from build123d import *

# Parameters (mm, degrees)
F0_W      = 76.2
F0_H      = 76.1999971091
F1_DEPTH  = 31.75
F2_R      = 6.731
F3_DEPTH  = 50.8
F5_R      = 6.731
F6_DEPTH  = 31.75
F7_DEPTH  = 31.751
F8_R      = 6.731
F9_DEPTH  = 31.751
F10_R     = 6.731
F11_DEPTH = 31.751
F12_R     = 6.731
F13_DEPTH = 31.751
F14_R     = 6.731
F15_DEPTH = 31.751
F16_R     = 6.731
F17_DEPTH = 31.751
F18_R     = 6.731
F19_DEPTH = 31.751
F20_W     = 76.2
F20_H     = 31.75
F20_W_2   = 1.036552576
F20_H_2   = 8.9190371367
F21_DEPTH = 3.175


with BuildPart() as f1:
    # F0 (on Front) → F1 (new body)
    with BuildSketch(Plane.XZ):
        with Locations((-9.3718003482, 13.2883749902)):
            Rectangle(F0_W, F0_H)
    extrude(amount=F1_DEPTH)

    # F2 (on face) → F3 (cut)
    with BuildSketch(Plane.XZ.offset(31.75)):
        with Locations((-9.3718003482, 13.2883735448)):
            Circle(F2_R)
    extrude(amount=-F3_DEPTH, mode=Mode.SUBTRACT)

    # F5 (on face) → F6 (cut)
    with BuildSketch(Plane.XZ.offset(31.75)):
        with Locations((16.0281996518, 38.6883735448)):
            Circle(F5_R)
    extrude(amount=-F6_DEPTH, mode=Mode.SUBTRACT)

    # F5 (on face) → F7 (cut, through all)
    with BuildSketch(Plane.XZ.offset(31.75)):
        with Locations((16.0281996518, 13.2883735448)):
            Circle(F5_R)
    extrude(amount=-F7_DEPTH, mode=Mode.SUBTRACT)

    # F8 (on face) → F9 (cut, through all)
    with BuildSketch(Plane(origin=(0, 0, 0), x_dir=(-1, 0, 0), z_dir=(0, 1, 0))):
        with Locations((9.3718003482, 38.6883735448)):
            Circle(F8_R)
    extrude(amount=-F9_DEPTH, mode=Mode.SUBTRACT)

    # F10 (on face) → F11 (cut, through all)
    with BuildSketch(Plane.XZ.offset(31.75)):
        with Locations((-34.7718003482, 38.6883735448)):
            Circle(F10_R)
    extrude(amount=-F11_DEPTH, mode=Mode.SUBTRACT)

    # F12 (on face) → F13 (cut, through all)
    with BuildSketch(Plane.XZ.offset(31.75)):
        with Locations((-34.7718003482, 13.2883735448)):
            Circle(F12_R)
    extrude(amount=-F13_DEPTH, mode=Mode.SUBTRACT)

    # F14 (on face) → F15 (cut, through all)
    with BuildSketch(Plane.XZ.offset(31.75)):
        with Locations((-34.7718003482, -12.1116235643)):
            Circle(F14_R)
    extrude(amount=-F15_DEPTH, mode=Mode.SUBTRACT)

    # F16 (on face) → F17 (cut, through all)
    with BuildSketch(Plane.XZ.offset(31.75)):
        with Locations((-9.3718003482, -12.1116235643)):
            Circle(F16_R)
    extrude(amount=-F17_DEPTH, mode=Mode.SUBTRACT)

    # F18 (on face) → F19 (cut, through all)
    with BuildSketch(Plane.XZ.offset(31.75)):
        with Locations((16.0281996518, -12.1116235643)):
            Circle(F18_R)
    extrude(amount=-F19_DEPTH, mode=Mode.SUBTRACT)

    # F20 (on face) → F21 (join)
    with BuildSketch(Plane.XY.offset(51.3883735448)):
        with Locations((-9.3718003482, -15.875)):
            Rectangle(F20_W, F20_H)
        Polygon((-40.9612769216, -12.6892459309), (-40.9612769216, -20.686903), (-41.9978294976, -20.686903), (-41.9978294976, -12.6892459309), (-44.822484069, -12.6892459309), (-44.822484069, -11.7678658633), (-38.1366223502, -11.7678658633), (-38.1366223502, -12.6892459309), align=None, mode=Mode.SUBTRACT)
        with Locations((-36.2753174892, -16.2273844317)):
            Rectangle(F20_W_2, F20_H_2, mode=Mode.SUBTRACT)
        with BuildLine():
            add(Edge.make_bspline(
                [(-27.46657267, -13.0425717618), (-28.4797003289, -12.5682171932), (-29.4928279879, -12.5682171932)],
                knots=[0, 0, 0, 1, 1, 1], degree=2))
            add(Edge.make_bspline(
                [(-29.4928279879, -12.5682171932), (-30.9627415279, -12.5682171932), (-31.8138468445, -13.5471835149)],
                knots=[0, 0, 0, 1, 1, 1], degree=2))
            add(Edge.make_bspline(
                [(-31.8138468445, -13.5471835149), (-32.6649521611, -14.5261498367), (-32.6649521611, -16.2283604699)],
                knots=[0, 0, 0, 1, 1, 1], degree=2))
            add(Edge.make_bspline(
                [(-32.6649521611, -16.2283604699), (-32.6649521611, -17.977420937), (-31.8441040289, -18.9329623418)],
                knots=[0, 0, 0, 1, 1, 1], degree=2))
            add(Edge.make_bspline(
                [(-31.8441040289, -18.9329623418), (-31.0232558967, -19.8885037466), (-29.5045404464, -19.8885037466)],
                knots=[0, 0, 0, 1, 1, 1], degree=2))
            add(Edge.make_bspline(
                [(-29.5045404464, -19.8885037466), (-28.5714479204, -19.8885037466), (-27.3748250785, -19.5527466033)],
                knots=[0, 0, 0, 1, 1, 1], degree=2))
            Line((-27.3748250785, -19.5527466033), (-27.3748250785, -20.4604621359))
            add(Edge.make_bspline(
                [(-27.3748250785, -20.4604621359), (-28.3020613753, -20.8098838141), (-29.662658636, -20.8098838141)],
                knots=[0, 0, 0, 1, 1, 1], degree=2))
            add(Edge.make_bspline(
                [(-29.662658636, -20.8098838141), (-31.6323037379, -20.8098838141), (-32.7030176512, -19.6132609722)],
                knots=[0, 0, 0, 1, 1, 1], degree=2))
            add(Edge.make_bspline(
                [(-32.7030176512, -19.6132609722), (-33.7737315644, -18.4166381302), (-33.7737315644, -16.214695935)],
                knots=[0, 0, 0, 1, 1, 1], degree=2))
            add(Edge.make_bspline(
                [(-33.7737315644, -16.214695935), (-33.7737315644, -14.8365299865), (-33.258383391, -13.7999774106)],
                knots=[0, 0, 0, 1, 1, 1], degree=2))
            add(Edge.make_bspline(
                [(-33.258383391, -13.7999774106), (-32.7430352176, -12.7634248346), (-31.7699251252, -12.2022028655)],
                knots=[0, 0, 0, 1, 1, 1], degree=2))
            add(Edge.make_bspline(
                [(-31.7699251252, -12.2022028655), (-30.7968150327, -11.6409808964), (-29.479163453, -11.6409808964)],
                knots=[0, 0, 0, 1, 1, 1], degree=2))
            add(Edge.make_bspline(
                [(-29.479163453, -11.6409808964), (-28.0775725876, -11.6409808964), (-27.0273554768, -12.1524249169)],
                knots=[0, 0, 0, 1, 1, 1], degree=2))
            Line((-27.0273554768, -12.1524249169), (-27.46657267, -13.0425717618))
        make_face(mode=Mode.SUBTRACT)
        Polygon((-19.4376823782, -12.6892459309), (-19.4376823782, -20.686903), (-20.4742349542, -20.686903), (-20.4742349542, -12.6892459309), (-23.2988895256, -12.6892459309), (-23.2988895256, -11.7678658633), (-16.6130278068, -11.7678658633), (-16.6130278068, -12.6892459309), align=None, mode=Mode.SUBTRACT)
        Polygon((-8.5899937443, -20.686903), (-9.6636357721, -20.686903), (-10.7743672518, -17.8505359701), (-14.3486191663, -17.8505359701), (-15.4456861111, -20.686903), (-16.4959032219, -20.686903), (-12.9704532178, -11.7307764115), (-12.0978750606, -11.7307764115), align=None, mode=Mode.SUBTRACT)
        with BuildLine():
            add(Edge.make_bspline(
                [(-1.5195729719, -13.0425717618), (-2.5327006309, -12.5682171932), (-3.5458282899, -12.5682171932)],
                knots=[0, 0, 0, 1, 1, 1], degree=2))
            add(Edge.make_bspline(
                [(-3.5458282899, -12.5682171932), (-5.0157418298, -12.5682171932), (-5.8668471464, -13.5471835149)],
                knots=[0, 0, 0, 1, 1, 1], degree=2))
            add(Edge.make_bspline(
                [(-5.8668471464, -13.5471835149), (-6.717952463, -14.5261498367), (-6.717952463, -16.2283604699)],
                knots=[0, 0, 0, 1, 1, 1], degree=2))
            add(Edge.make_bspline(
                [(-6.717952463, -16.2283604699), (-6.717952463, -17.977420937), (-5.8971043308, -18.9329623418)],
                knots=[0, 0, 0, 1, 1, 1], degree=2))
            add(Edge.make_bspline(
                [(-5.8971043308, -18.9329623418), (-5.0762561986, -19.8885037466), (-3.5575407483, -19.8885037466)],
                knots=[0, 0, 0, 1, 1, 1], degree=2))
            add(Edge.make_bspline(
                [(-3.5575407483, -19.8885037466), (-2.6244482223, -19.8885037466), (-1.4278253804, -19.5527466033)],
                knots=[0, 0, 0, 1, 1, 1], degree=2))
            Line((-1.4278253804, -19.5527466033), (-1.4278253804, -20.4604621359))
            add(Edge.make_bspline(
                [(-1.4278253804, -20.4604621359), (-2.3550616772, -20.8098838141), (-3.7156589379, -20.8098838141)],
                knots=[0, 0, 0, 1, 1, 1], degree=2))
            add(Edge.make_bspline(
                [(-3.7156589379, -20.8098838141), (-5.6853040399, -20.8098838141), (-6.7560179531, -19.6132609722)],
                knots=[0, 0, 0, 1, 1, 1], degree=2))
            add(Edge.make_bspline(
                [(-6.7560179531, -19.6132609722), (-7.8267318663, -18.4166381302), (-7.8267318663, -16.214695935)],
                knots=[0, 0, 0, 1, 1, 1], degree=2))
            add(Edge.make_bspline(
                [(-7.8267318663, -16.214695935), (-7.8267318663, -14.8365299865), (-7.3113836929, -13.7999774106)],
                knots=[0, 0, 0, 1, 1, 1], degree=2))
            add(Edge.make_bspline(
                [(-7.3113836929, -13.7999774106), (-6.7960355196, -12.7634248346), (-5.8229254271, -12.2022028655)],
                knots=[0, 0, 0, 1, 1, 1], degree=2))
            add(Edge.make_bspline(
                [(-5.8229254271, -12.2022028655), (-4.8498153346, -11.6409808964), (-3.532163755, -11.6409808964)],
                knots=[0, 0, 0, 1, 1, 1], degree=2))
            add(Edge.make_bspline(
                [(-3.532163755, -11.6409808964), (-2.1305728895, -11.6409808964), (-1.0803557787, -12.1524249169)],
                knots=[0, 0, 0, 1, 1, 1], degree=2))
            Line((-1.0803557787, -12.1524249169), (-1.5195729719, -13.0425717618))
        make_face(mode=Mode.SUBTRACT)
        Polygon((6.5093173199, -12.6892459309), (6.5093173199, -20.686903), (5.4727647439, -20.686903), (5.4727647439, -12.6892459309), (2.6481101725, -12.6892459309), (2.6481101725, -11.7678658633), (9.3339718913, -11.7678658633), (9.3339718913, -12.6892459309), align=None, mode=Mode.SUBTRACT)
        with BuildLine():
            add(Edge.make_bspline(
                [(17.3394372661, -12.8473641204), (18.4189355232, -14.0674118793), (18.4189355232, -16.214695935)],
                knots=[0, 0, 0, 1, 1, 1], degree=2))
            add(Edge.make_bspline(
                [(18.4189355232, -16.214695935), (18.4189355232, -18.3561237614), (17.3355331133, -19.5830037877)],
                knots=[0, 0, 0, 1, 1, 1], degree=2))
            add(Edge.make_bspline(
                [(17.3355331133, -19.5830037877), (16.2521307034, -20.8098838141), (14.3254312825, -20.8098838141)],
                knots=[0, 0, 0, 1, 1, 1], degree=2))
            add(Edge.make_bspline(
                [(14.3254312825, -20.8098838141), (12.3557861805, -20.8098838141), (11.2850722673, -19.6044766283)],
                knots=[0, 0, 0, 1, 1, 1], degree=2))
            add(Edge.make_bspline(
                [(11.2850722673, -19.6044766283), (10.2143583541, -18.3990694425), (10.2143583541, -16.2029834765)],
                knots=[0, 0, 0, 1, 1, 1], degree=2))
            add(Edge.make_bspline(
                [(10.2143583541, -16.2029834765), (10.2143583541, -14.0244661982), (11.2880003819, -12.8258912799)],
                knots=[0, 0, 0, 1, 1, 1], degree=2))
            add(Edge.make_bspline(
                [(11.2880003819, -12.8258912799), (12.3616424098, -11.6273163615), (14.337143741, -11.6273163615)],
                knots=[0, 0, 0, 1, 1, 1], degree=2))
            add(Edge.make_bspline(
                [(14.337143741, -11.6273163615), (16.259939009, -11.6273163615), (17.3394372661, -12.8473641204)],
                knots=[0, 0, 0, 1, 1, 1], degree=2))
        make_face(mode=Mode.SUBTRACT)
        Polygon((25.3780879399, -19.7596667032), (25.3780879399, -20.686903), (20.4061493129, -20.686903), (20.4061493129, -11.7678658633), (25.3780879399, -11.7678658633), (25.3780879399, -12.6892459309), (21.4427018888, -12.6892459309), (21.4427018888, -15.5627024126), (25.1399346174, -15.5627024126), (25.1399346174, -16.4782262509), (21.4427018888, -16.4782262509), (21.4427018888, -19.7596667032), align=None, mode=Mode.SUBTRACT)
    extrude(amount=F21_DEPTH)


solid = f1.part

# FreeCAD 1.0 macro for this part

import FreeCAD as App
import Part
import Sketcher

V = App.Vector
Q = App.Units.Quantity


def add_polygon(sketch, points):
    """Adds a closed chain of lines whose ends are joined by coincident constraints."""
    first, n = sketch.GeometryCount, len(points)
    for a, b in zip(points, points[1:] + points[:1]):
        sketch.addGeometry(Part.LineSegment(App.Vector(*a, 0), App.Vector(*b, 0)), False)
    for i in range(n):
        sketch.addConstraint(Sketcher.Constraint("Coincident", first + i, 2, first + (i + 1) % n, 1))

doc = App.newDocument("Part")
params = doc.addObject("Spreadsheet::Sheet", "Params")
for row, (alias, value) in enumerate([
    ("sketch1_width", "3 in"),
    ("sketch1_height", "2.9999999 in"),
    ("pad1_length", "1.25 in"),
    ("sketch2_diameter", "0.53 in"),
    ("pocket1_length", "2 in"),
    ("sketch3_diameter", "0.53 in"),
    ("pocket2_length", "1.25 in"),
    ("sketch4_diameter", "0.53 in"),
    ("sketch5_diameter", "0.53 in"),
    ("sketch6_diameter", "0.53 in"),
    ("sketch7_diameter", "0.53 in"),
    ("sketch8_diameter", "0.53 in"),
    ("sketch9_diameter", "0.53 in"),
    ("sketch10_diameter", "0.53 in"),
    ("sketch11_width", "3 in"),
    ("sketch11_height", "1.25 in"),
    ("pad2_length", "0.125 in"),
], start=1):
    params.set(f"A{row}", alias)
    params.set(f"B{row}", "=" + value)
    params.setAlias(f"B{row}", alias)

body = doc.addObject("PartDesign::Body", "Body")

# Sketch on XZ plane
sketch1 = body.newObject("Sketcher::SketchObject", "Sketch")
sketch1.AttachmentSupport = (doc.getObject("XZ_Plane"), [""])
sketch1.MapMode = "FlatFace"
add_polygon(sketch1, [(-47, 51), (-47, -25), (29, -25), (29, 51)])  # lines 0-3
sketch1.addConstraint(Sketcher.Constraint("Vertical", 0))
sketch1.addConstraint(Sketcher.Constraint("Horizontal", 1))
sketch1.addConstraint(Sketcher.Constraint("Vertical", 2))
sketch1.addConstraint(Sketcher.Constraint("Horizontal", 3))
sketch1.addConstraint(Sketcher.Constraint("DistanceX", 1, 1, 1, 2, Q("3 in")))
sketch1.addConstraint(Sketcher.Constraint("DistanceY", 0, 2, 0, 1, Q("2.9999999 in")))
sketch1.addConstraint(Sketcher.Constraint("DistanceX", 0, 2, -1, 1, Q("47.4718 mm")))
sketch1.addConstraint(Sketcher.Constraint("DistanceY", 0, 2, -1, 1, Q("24.811624 mm")))
sketch1.setExpression("Constraints[8]", "Params.sketch1_width")
sketch1.setExpression("Constraints[9]", "Params.sketch1_height")
pad1 = body.newObject("PartDesign::Pad", "Pad")
pad1.Profile = sketch1
pad1.setExpression("Length", "Params.pad1_length")

# Sketch on XZ plane
sketch2 = body.newObject("Sketcher::SketchObject", "Sketch001")
sketch2.AttachmentSupport = (doc.getObject("XZ_Plane"), [""])
sketch2.MapMode = "FlatFace"
sketch2.AttachmentOffset = App.Placement(V(0, 0, 1.25 * 25.4), App.Rotation())
sketch2.addGeometry(Part.Circle(V(-9, 13, 0), V(0, 0, 1), 7), False)
sketch2.addConstraint(Sketcher.Constraint("Diameter", 0, Q("0.53 in")))
sketch2.addConstraint(Sketcher.Constraint("DistanceX", 0, 3, -1, 1, Q("9.3718 mm")))
sketch2.addConstraint(Sketcher.Constraint("DistanceY", -1, 1, 0, 3, Q("13.288374 mm")))
sketch2.setExpression("Constraints[0]", "Params.sketch2_diameter")
pocket1 = body.newObject("PartDesign::Pocket", "Pocket")
pocket1.Profile = sketch2
pocket1.setExpression("Length", "Params.pocket1_length")

# Sketch on XZ plane
sketch3 = body.newObject("Sketcher::SketchObject", "Sketch002")
sketch3.AttachmentSupport = (doc.getObject("XZ_Plane"), [""])
sketch3.MapMode = "FlatFace"
sketch3.AttachmentOffset = App.Placement(V(0, 0, 1.25 * 25.4), App.Rotation())
sketch3.addGeometry(Part.Circle(V(16, 39, 0), V(0, 0, 1), 7), False)
sketch3.addConstraint(Sketcher.Constraint("Diameter", 0, Q("0.53 in")))
sketch3.addConstraint(Sketcher.Constraint("DistanceX", -1, 1, 0, 3, Q("16.0282 mm")))
sketch3.addConstraint(Sketcher.Constraint("DistanceY", -1, 1, 0, 3, Q("38.688374 mm")))
sketch3.setExpression("Constraints[0]", "Params.sketch3_diameter")
pocket2 = body.newObject("PartDesign::Pocket", "Pocket001")
pocket2.Profile = sketch3
pocket2.setExpression("Length", "Params.pocket2_length")

# Sketch on XZ plane
sketch4 = body.newObject("Sketcher::SketchObject", "Sketch003")
sketch4.AttachmentSupport = (doc.getObject("XZ_Plane"), [""])
sketch4.MapMode = "FlatFace"
sketch4.AttachmentOffset = App.Placement(V(0, 0, 1.25 * 25.4), App.Rotation())
sketch4.addGeometry(Part.Circle(V(16, 13, 0), V(0, 0, 1), 7), False)
sketch4.addConstraint(Sketcher.Constraint("Diameter", 0, Q("0.53 in")))
sketch4.addConstraint(Sketcher.Constraint("DistanceX", -1, 1, 0, 3, Q("16.0282 mm")))
sketch4.addConstraint(Sketcher.Constraint("DistanceY", -1, 1, 0, 3, Q("13.288374 mm")))
sketch4.setExpression("Constraints[0]", "Params.sketch4_diameter")
pocket3 = body.newObject("PartDesign::Pocket", "Pocket002")
pocket3.Profile = sketch4
pocket3.Type = "ThroughAll"

# Sketch on XZ plane
sketch5 = body.newObject("Sketcher::SketchObject", "Sketch004")
sketch5.AttachmentSupport = (doc.getObject("XZ_Plane"), [""])
sketch5.MapMode = "FlatFace"
sketch5.addGeometry(Part.Circle(V(-9, 39, 0), V(0, 0, 1), 7), False)
sketch5.addConstraint(Sketcher.Constraint("Diameter", 0, Q("0.53 in")))
sketch5.addConstraint(Sketcher.Constraint("DistanceX", 0, 3, -1, 1, Q("9.3718 mm")))
sketch5.addConstraint(Sketcher.Constraint("DistanceY", -1, 1, 0, 3, Q("38.688374 mm")))
sketch5.setExpression("Constraints[0]", "Params.sketch5_diameter")
pocket4 = body.newObject("PartDesign::Pocket", "Pocket003")
pocket4.Profile = sketch5
pocket4.Type = "ThroughAll"
pocket4.Reversed = True

# Sketch on XZ plane
sketch6 = body.newObject("Sketcher::SketchObject", "Sketch005")
sketch6.AttachmentSupport = (doc.getObject("XZ_Plane"), [""])
sketch6.MapMode = "FlatFace"
sketch6.AttachmentOffset = App.Placement(V(0, 0, 1.25 * 25.4), App.Rotation())
sketch6.addGeometry(Part.Circle(V(-35, 39, 0), V(0, 0, 1), 7), False)
sketch6.addConstraint(Sketcher.Constraint("Diameter", 0, Q("0.53 in")))
sketch6.addConstraint(Sketcher.Constraint("DistanceX", 0, 3, -1, 1, Q("34.7718 mm")))
sketch6.addConstraint(Sketcher.Constraint("DistanceY", -1, 1, 0, 3, Q("38.688374 mm")))
sketch6.setExpression("Constraints[0]", "Params.sketch6_diameter")
pocket5 = body.newObject("PartDesign::Pocket", "Pocket004")
pocket5.Profile = sketch6
pocket5.Type = "ThroughAll"

# Sketch on XZ plane
sketch7 = body.newObject("Sketcher::SketchObject", "Sketch006")
sketch7.AttachmentSupport = (doc.getObject("XZ_Plane"), [""])
sketch7.MapMode = "FlatFace"
sketch7.AttachmentOffset = App.Placement(V(0, 0, 1.25 * 25.4), App.Rotation())
sketch7.addGeometry(Part.Circle(V(-35, 13, 0), V(0, 0, 1), 7), False)
sketch7.addConstraint(Sketcher.Constraint("Diameter", 0, Q("0.53 in")))
sketch7.addConstraint(Sketcher.Constraint("DistanceX", 0, 3, -1, 1, Q("34.7718 mm")))
sketch7.addConstraint(Sketcher.Constraint("DistanceY", -1, 1, 0, 3, Q("13.288374 mm")))
sketch7.setExpression("Constraints[0]", "Params.sketch7_diameter")
pocket6 = body.newObject("PartDesign::Pocket", "Pocket005")
pocket6.Profile = sketch7
pocket6.Type = "ThroughAll"

# Sketch on XZ plane
sketch8 = body.newObject("Sketcher::SketchObject", "Sketch007")
sketch8.AttachmentSupport = (doc.getObject("XZ_Plane"), [""])
sketch8.MapMode = "FlatFace"
sketch8.AttachmentOffset = App.Placement(V(0, 0, 1.25 * 25.4), App.Rotation())
sketch8.addGeometry(Part.Circle(V(-35, -12, 0), V(0, 0, 1), 7), False)
sketch8.addConstraint(Sketcher.Constraint("Diameter", 0, Q("0.53 in")))
sketch8.addConstraint(Sketcher.Constraint("DistanceX", 0, 3, -1, 1, Q("34.7718 mm")))
sketch8.addConstraint(Sketcher.Constraint("DistanceY", 0, 3, -1, 1, Q("12.111624 mm")))
sketch8.setExpression("Constraints[0]", "Params.sketch8_diameter")
pocket7 = body.newObject("PartDesign::Pocket", "Pocket006")
pocket7.Profile = sketch8
pocket7.Type = "ThroughAll"

# Sketch on XZ plane
sketch9 = body.newObject("Sketcher::SketchObject", "Sketch008")
sketch9.AttachmentSupport = (doc.getObject("XZ_Plane"), [""])
sketch9.MapMode = "FlatFace"
sketch9.AttachmentOffset = App.Placement(V(0, 0, 1.25 * 25.4), App.Rotation())
sketch9.addGeometry(Part.Circle(V(-9, -12, 0), V(0, 0, 1), 7), False)
sketch9.addConstraint(Sketcher.Constraint("Diameter", 0, Q("0.53 in")))
sketch9.addConstraint(Sketcher.Constraint("DistanceX", 0, 3, -1, 1, Q("9.3718 mm")))
sketch9.addConstraint(Sketcher.Constraint("DistanceY", 0, 3, -1, 1, Q("12.111624 mm")))
sketch9.setExpression("Constraints[0]", "Params.sketch9_diameter")
pocket8 = body.newObject("PartDesign::Pocket", "Pocket007")
pocket8.Profile = sketch9
pocket8.Type = "ThroughAll"

# Sketch on XZ plane
sketch10 = body.newObject("Sketcher::SketchObject", "Sketch009")
sketch10.AttachmentSupport = (doc.getObject("XZ_Plane"), [""])
sketch10.MapMode = "FlatFace"
sketch10.AttachmentOffset = App.Placement(V(0, 0, 1.25 * 25.4), App.Rotation())
sketch10.addGeometry(Part.Circle(V(16, -12, 0), V(0, 0, 1), 7), False)
sketch10.addConstraint(Sketcher.Constraint("Diameter", 0, Q("0.53 in")))
sketch10.addConstraint(Sketcher.Constraint("DistanceX", -1, 1, 0, 3, Q("16.0282 mm")))
sketch10.addConstraint(Sketcher.Constraint("DistanceY", 0, 3, -1, 1, Q("12.111624 mm")))
sketch10.setExpression("Constraints[0]", "Params.sketch10_diameter")
pocket9 = body.newObject("PartDesign::Pocket", "Pocket008")
pocket9.Profile = sketch10
pocket9.Type = "ThroughAll"

# Sketch on XY plane
sketch11 = body.newObject("Sketcher::SketchObject", "Sketch010")
sketch11.AttachmentSupport = (doc.getObject("XY_Plane"), [""])
sketch11.MapMode = "FlatFace"
sketch11.AttachmentOffset = App.Placement(V(0, 0, 51.388374), App.Rotation())
add_polygon(sketch11, [(-47.4718, 0), (-47.4718, -31.75), (28.7282, -31.75), (28.7282, 0)])  # lines 0-3
add_polygon(sketch11, [(-38.136622, -12.689246), (-40.961277, -12.689246), (-40.961277, -20.686903), (-41.997829, -20.686903), (-41.997829, -12.689246), (-44.822484, -12.689246), (-44.822484, -11.767866), (-38.136622, -11.767866)])  # lines 4-11
add_polygon(sketch11, [(-35.757041, -20.686903), (-36.793594, -20.686903), (-36.793594, -11.767866), (-35.757041, -11.767866)])  # lines 12-15
sketch11.addGeometry(Part.LineSegment(V(-27.027355, -12.152425, 0), V(-27.466573, -13.042572, 0)), False)  # 16
sketch11.addGeometry(Part.BSplineCurve([V(-27.466573, -13.042572, 0), V(-28.4797, -12.568217, 0), V(-30.962742, -12.568217, 0), V(-31.813847, -13.547184, 0)], [3, 1, 3], [0, 1, 2.450867052], False, 2, [1, 1, 1, 1], False), False)  # 17
sketch11.addGeometry(Part.BSplineCurve([V(-31.813847, -13.547184, 0), V(-32.664952, -14.52615, 0), V(-32.664952, -17.977421, 0), V(-31.023256, -19.888504, 0), V(-28.571448, -19.888504, 0), V(-27.374825, -19.552747, 0)], [3, 1, 1, 1, 3], [0, 1, 2.027522936, 3.055045872, 3.686351737], False, 2, [1, 1, 1, 1, 1, 1], False), False)  # 18
sketch11.addGeometry(Part.LineSegment(V(-27.374825, -19.552747, 0), V(-27.374825, -20.460462, 0)), False)  # 19
sketch11.addGeometry(Part.BSplineCurve([V(-27.374825, -20.460462, 0), V(-28.302061, -20.809884, 0), V(-31.632304, -20.809884, 0), V(-32.703018, -19.613261, 0)], [3, 1, 3], [0, 1, 2.447632712], False, 2, [1, 1, 1, 1], False), False)  # 20
sketch11.addGeometry(Part.BSplineCurve([V(-32.703018, -19.613261, 0), V(-33.773732, -18.416638, 0), V(-33.773732, -14.83653, 0), V(-33.258383, -13.799977, 0)], [3, 1, 3], [0, 1, 1.625886525], False, 2, [1, 1, 1, 1], False), False)  # 21
sketch11.addGeometry(Part.BSplineCurve([V(-33.258383, -13.799977, 0), V(-32.743035, -12.763425, 0), V(-31.769925, -12.202203, 0)], [3, 3], [0, 1], False, 2, [1, 1, 1], False), False)  # 22
sketch11.addGeometry(Part.BSplineCurve([V(-31.769925, -12.202203, 0), V(-30.796815, -11.640981, 0), V(-28.077573, -11.640981, 0), V(-27.027355, -12.152425, 0)], [3, 1, 3], [0, 1, 2.063703704], False, 2, [1, 1, 1, 1], False), False)  # 23
add_polygon(sketch11, [(-16.613028, -12.689246), (-19.437682, -12.689246), (-19.437682, -20.686903), (-20.474235, -20.686903), (-20.474235, -12.689246), (-23.29889, -12.689246), (-23.29889, -11.767866), (-16.613028, -11.767866)])  # lines 24-31
sketch11.addGeometry(Part.LineSegment(V(-1.080356, -12.152425, 0), V(-1.519573, -13.042572, 0)), False)  # 32
sketch11.addGeometry(Part.BSplineCurve([V(-1.519573, -13.042572, 0), V(-2.532701, -12.568217, 0), V(-5.015742, -12.568217, 0), V(-5.866847, -13.547184, 0)], [3, 1, 3], [0, 1, 2.450867052], False, 2, [1, 1, 1, 1], False), False)  # 33
sketch11.addGeometry(Part.BSplineCurve([V(-5.866847, -13.547184, 0), V(-6.717952, -14.52615, 0), V(-6.717952, -17.977421, 0), V(-5.076256, -19.888504, 0), V(-2.624448, -19.888504, 0), V(-1.427825, -19.552747, 0)], [3, 1, 1, 1, 3], [0, 1, 2.027522936, 3.055045872, 3.686351737], False, 2, [1, 1, 1, 1, 1, 1], False), False)  # 34
sketch11.addGeometry(Part.LineSegment(V(-1.427825, -19.552747, 0), V(-1.427825, -20.460462, 0)), False)  # 35
sketch11.addGeometry(Part.BSplineCurve([V(-1.427825, -20.460462, 0), V(-2.355062, -20.809884, 0), V(-5.685304, -20.809884, 0), V(-6.756018, -19.613261, 0)], [3, 1, 3], [0, 1, 2.447632712], False, 2, [1, 1, 1, 1], False), False)  # 36
sketch11.addGeometry(Part.BSplineCurve([V(-6.756018, -19.613261, 0), V(-7.826732, -18.416638, 0), V(-7.826732, -14.83653, 0), V(-7.311384, -13.799977, 0)], [3, 1, 3], [0, 1, 1.625886525], False, 2, [1, 1, 1, 1], False), False)  # 37
sketch11.addGeometry(Part.BSplineCurve([V(-7.311384, -13.799977, 0), V(-6.796036, -12.763425, 0), V(-4.849815, -11.640981, 0), V(-2.130573, -11.640981, 0), V(-1.080356, -12.152425, 0)], [3, 1, 1, 3], [0, 1, 2, 3.063703704], False, 2, [1, 1, 1, 1, 1], False), False)  # 38
add_polygon(sketch11, [(9.333972, -12.689246), (6.509317, -12.689246), (6.509317, -20.686903), (5.472765, -20.686903), (5.472765, -12.689246), (2.64811, -12.689246), (2.64811, -11.767866), (9.333972, -11.767866)])  # lines 39-46
add_polygon(sketch11, [(21.442702, -19.759667), (25.378088, -19.759667), (25.378088, -20.686903), (20.406149, -20.686903), (20.406149, -11.767866), (25.378088, -11.767866), (25.378088, -12.689246), (21.442702, -12.689246), (21.442702, -15.562702), (25.139935, -15.562702), (25.139935, -16.478226), (21.442702, -16.478226)])  # lines 47-58
add_polygon(sketch11, [(-12.097875, -11.730776), (-8.589994, -20.686903), (-9.663636, -20.686903), (-10.774367, -17.850536), (-14.348619, -17.850536), (-15.445686, -20.686903), (-16.495903, -20.686903), (-12.970453, -11.730776)])  # lines 59-66
sketch11.addGeometry(Part.BSplineCurve([V(11.288, -12.825891, 0), V(12.361642, -11.627316, 0), V(16.259939, -11.627316, 0), V(18.418936, -14.067412, 0), V(18.418936, -18.356124, 0), V(17.335533, -19.583004, 0)], [3, 1, 1, 1, 3], [0, 1, 1.973320158, 2.946640316, 3.917305965], False, 2, [1, 1, 1, 1, 1, 1], False), False)  # 67
sketch11.addGeometry(Part.BSplineCurve([V(17.335533, -19.583004, 0), V(16.252131, -20.809884, 0), V(12.355786, -20.809884, 0), V(10.214358, -18.399069, 0), V(10.214358, -14.024466, 0), V(11.288, -12.825891, 0)], [3, 1, 1, 1, 3], [0, 1, 2.022289767, 3.044579534, 4.058690983], False, 2, [1, 1, 1, 1, 1, 1], False), False)  # 68
sketch11.addConstraint(Sketcher.Constraint("Block", 17))
sketch11.addConstraint(Sketcher.Constraint("Block", 18))
sketch11.addConstraint(Sketcher.Constraint("Block", 20))
sketch11.addConstraint(Sketcher.Constraint("Block", 21))
sketch11.addConstraint(Sketcher.Constraint("Block", 22))
sketch11.addConstraint(Sketcher.Constraint("Block", 23))
sketch11.addConstraint(Sketcher.Constraint("Block", 33))
sketch11.addConstraint(Sketcher.Constraint("Block", 34))
sketch11.addConstraint(Sketcher.Constraint("Block", 36))
sketch11.addConstraint(Sketcher.Constraint("Block", 37))
sketch11.addConstraint(Sketcher.Constraint("Block", 38))
sketch11.addConstraint(Sketcher.Constraint("Block", 67))
sketch11.addConstraint(Sketcher.Constraint("Block", 68))
sketch11.addConstraint(Sketcher.Constraint("Coincident", 16, 2, 17, 1))
sketch11.addConstraint(Sketcher.Constraint("Coincident", 18, 2, 19, 1))
sketch11.addConstraint(Sketcher.Constraint("Coincident", 19, 2, 20, 1))
sketch11.addConstraint(Sketcher.Constraint("Coincident", 23, 2, 16, 1))
sketch11.addConstraint(Sketcher.Constraint("Coincident", 32, 2, 33, 1))
sketch11.addConstraint(Sketcher.Constraint("Coincident", 34, 2, 35, 1))
sketch11.addConstraint(Sketcher.Constraint("Coincident", 35, 2, 36, 1))
sketch11.addConstraint(Sketcher.Constraint("Coincident", 38, 2, 32, 1))
sketch11.addConstraint(Sketcher.Constraint("Vertical", 0))
sketch11.addConstraint(Sketcher.Constraint("Horizontal", 1))
sketch11.addConstraint(Sketcher.Constraint("Vertical", 2))
sketch11.addConstraint(Sketcher.Constraint("Horizontal", 3))
sketch11.addConstraint(Sketcher.Constraint("Horizontal", 4))
sketch11.addConstraint(Sketcher.Constraint("Vertical", 5))
sketch11.addConstraint(Sketcher.Constraint("Horizontal", 6))
sketch11.addConstraint(Sketcher.Constraint("Vertical", 7))
sketch11.addConstraint(Sketcher.Constraint("Horizontal", 8))
sketch11.addConstraint(Sketcher.Constraint("Vertical", 9))
sketch11.addConstraint(Sketcher.Constraint("Horizontal", 10))
sketch11.addConstraint(Sketcher.Constraint("Vertical", 11))
sketch11.addConstraint(Sketcher.Constraint("Horizontal", 12))
sketch11.addConstraint(Sketcher.Constraint("Vertical", 13))
sketch11.addConstraint(Sketcher.Constraint("Horizontal", 14))
sketch11.addConstraint(Sketcher.Constraint("Vertical", 15))
sketch11.addConstraint(Sketcher.Constraint("Horizontal", 24))
sketch11.addConstraint(Sketcher.Constraint("Vertical", 25))
sketch11.addConstraint(Sketcher.Constraint("Horizontal", 26))
sketch11.addConstraint(Sketcher.Constraint("Vertical", 27))
sketch11.addConstraint(Sketcher.Constraint("Horizontal", 28))
sketch11.addConstraint(Sketcher.Constraint("Vertical", 29))
sketch11.addConstraint(Sketcher.Constraint("Horizontal", 30))
sketch11.addConstraint(Sketcher.Constraint("Vertical", 31))
sketch11.addConstraint(Sketcher.Constraint("Horizontal", 39))
sketch11.addConstraint(Sketcher.Constraint("Vertical", 40))
sketch11.addConstraint(Sketcher.Constraint("Horizontal", 41))
sketch11.addConstraint(Sketcher.Constraint("Vertical", 42))
sketch11.addConstraint(Sketcher.Constraint("Horizontal", 43))
sketch11.addConstraint(Sketcher.Constraint("Vertical", 44))
sketch11.addConstraint(Sketcher.Constraint("Horizontal", 45))
sketch11.addConstraint(Sketcher.Constraint("Vertical", 46))
sketch11.addConstraint(Sketcher.Constraint("Horizontal", 47))
sketch11.addConstraint(Sketcher.Constraint("Vertical", 48))
sketch11.addConstraint(Sketcher.Constraint("Horizontal", 49))
sketch11.addConstraint(Sketcher.Constraint("Vertical", 50))
sketch11.addConstraint(Sketcher.Constraint("Horizontal", 51))
sketch11.addConstraint(Sketcher.Constraint("Vertical", 52))
sketch11.addConstraint(Sketcher.Constraint("Horizontal", 53))
sketch11.addConstraint(Sketcher.Constraint("Vertical", 54))
sketch11.addConstraint(Sketcher.Constraint("Horizontal", 55))
sketch11.addConstraint(Sketcher.Constraint("Vertical", 56))
sketch11.addConstraint(Sketcher.Constraint("Horizontal", 57))
sketch11.addConstraint(Sketcher.Constraint("Vertical", 58))
sketch11.addConstraint(Sketcher.Constraint("Horizontal", 60))
sketch11.addConstraint(Sketcher.Constraint("Horizontal", 62))
sketch11.addConstraint(Sketcher.Constraint("Horizontal", 64))
sketch11.addConstraint(Sketcher.Constraint("Horizontal", 66))
sketch11.addConstraint(Sketcher.Constraint("PointOnObject", 2, 2, -1))
sketch11.addConstraint(Sketcher.Constraint("Horizontal", 4, 2, 7, 2))
sketch11.addConstraint(Sketcher.Constraint("Horizontal", 6, 2, 12, 2))
sketch11.addConstraint(Sketcher.Constraint("Horizontal", 10, 2, 13, 2))
sketch11.addConstraint(Sketcher.Constraint("Horizontal", 11, 2, 24, 2))
sketch11.addConstraint(Sketcher.Constraint("Horizontal", 15, 2, 25, 2))
sketch11.addConstraint(Sketcher.Constraint("Horizontal", 24, 2, 27, 2))
sketch11.addConstraint(Sketcher.Constraint("Horizontal", 14, 2, 29, 2))
sketch11.addConstraint(Sketcher.Constraint("Horizontal", 31, 2, 39, 2))
sketch11.addConstraint(Sketcher.Constraint("Horizontal", 26, 2, 40, 2))
sketch11.addConstraint(Sketcher.Constraint("Horizontal", 39, 2, 42, 2))
sketch11.addConstraint(Sketcher.Constraint("Horizontal", 30, 2, 44, 2))
sketch11.addConstraint(Sketcher.Constraint("Horizontal", 41, 2, 48, 2))
sketch11.addConstraint(Sketcher.Constraint("Horizontal", 45, 2, 50, 2))
sketch11.addConstraint(Sketcher.Constraint("Horizontal", 46, 2, 52, 2))
sketch11.addConstraint(Sketcher.Constraint("Horizontal", 49, 2, 59, 2))
sketch11.addConstraint(Sketcher.Constraint("Horizontal", 60, 2, 63, 2))
sketch11.addConstraint(Sketcher.Constraint("Vertical", 48, 2, 51, 2))
sketch11.addConstraint(Sketcher.Constraint("Vertical", 54, 2, 57, 2))
sketch11.addConstraint(Sketcher.Constraint("Equal", 4, 8))
sketch11.addConstraint(Sketcher.Constraint("Equal", 6, 12))
sketch11.addConstraint(Sketcher.Constraint("Equal", 8, 24))
sketch11.addConstraint(Sketcher.Constraint("Equal", 14, 26))
sketch11.addConstraint(Sketcher.Constraint("Equal", 24, 28))
sketch11.addConstraint(Sketcher.Constraint("Equal", 28, 39))
sketch11.addConstraint(Sketcher.Constraint("Equal", 26, 41))
sketch11.addConstraint(Sketcher.Constraint("Equal", 39, 43))
sketch11.addConstraint(Sketcher.Constraint("DistanceX", 1, 1, 1, 2, Q("3 in")))
sketch11.addConstraint(Sketcher.Constraint("DistanceY", 0, 2, 0, 1, Q("1.25 in")))
sketch11.addConstraint(Sketcher.Constraint("Distance", 59, Q("9.618598 mm")))
sketch11.addConstraint(Sketcher.Constraint("DistanceX", 10, 1, 10, 2, Q("6.685862 mm")))
sketch11.addConstraint(Sketcher.Constraint("DistanceX", 49, 2, 49, 1, Q("4.971939 mm")))
sketch11.addConstraint(Sketcher.Constraint("DistanceX", 62, 2, 62, 1, Q("3.574252 mm")))
sketch11.addConstraint(Sketcher.Constraint("DistanceX", 66, 1, 66, 2, Q("0.872578 mm")))
sketch11.addConstraint(Sketcher.Constraint("DistanceY", 9, 1, 9, 2, Q("0.92138 mm")))
sketch11.addConstraint(Sketcher.Constraint("DistanceY", 58, 2, 58, 1, Q("3.28144 mm")))
sketch11.addConstraint(Sketcher.Constraint("DistanceX", 0, 2, -1, 1, Q("47.4718 mm")))
sketch11.addConstraint(Sketcher.Constraint("DistanceX", -1, 1, 53, 2, Q("21.442702 mm")))
sketch11.addConstraint(Sketcher.Constraint("DistanceY", 47, 2, 45, 2, Q("7.991801 mm")))
sketch11.addConstraint(Sketcher.Constraint("DistanceY", 49, 2, 54, 2, Q("5.124201 mm")))
sketch11.addConstraint(Sketcher.Constraint("DistanceX", 26, 2, 60, 2, Q("10.810599 mm")))
sketch11.addConstraint(Sketcher.Constraint("Distance", 63, Q("3.04114 mm")))
sketch11.addConstraint(Sketcher.Constraint("Distance", 65, Q("9.62502 mm")))
sketch11.addConstraint(Sketcher.Constraint("DistanceX", 4, 2, 4, 1, Q("2.824655 mm")))
sketch11.addConstraint(Sketcher.Constraint("DistanceX", 47, 1, 47, 2, Q("3.935386 mm")))
sketch11.addConstraint(Sketcher.Constraint("DistanceX", 55, 1, 55, 2, Q("3.697233 mm")))
sketch11.addConstraint(Sketcher.Constraint("DistanceX", 60, 2, 60, 1, Q("1.073642 mm")))
sketch11.addConstraint(Sketcher.Constraint("DistanceX", 64, 2, 64, 1, Q("1.050217 mm")))
sketch11.addConstraint(Sketcher.Constraint("DistanceY", 5, 2, 5, 1, Q("7.997657 mm")))
sketch11.addConstraint(Sketcher.Constraint("DistanceX", 6, 2, -1, 1, Q("41.997829 mm")))
sketch11.addConstraint(Sketcher.Constraint("DistanceX", 14, 2, -1, 1, Q("35.757041 mm")))
sketch11.addConstraint(Sketcher.Constraint("DistanceX", 28, 2, -1, 1, Q("23.29889 mm")))
sketch11.addConstraint(Sketcher.Constraint("DistanceX", -1, 1, 43, 2, Q("2.64811 mm")))
sketch11.addConstraint(Sketcher.Constraint("DistanceX", 62, 2, -1, 1, Q("14.348619 mm")))
sketch11.addConstraint(Sketcher.Constraint("DistanceY", 15, 2, 16, 2, Q("7.644331 mm")))
sketch11.addConstraint(Sketcher.Constraint("DistanceY", 61, 2, 31, 2, Q("5.16129 mm")))
sketch11.setExpression("Constraints[148]", "Params.sketch11_width")
sketch11.setExpression("Constraints[149]", "Params.sketch11_height")
pad2 = body.newObject("PartDesign::Pad", "Pad001")
pad2.Profile = sketch11
pad2.setExpression("Length", "Params.pad2_length")

doc.recompute()
